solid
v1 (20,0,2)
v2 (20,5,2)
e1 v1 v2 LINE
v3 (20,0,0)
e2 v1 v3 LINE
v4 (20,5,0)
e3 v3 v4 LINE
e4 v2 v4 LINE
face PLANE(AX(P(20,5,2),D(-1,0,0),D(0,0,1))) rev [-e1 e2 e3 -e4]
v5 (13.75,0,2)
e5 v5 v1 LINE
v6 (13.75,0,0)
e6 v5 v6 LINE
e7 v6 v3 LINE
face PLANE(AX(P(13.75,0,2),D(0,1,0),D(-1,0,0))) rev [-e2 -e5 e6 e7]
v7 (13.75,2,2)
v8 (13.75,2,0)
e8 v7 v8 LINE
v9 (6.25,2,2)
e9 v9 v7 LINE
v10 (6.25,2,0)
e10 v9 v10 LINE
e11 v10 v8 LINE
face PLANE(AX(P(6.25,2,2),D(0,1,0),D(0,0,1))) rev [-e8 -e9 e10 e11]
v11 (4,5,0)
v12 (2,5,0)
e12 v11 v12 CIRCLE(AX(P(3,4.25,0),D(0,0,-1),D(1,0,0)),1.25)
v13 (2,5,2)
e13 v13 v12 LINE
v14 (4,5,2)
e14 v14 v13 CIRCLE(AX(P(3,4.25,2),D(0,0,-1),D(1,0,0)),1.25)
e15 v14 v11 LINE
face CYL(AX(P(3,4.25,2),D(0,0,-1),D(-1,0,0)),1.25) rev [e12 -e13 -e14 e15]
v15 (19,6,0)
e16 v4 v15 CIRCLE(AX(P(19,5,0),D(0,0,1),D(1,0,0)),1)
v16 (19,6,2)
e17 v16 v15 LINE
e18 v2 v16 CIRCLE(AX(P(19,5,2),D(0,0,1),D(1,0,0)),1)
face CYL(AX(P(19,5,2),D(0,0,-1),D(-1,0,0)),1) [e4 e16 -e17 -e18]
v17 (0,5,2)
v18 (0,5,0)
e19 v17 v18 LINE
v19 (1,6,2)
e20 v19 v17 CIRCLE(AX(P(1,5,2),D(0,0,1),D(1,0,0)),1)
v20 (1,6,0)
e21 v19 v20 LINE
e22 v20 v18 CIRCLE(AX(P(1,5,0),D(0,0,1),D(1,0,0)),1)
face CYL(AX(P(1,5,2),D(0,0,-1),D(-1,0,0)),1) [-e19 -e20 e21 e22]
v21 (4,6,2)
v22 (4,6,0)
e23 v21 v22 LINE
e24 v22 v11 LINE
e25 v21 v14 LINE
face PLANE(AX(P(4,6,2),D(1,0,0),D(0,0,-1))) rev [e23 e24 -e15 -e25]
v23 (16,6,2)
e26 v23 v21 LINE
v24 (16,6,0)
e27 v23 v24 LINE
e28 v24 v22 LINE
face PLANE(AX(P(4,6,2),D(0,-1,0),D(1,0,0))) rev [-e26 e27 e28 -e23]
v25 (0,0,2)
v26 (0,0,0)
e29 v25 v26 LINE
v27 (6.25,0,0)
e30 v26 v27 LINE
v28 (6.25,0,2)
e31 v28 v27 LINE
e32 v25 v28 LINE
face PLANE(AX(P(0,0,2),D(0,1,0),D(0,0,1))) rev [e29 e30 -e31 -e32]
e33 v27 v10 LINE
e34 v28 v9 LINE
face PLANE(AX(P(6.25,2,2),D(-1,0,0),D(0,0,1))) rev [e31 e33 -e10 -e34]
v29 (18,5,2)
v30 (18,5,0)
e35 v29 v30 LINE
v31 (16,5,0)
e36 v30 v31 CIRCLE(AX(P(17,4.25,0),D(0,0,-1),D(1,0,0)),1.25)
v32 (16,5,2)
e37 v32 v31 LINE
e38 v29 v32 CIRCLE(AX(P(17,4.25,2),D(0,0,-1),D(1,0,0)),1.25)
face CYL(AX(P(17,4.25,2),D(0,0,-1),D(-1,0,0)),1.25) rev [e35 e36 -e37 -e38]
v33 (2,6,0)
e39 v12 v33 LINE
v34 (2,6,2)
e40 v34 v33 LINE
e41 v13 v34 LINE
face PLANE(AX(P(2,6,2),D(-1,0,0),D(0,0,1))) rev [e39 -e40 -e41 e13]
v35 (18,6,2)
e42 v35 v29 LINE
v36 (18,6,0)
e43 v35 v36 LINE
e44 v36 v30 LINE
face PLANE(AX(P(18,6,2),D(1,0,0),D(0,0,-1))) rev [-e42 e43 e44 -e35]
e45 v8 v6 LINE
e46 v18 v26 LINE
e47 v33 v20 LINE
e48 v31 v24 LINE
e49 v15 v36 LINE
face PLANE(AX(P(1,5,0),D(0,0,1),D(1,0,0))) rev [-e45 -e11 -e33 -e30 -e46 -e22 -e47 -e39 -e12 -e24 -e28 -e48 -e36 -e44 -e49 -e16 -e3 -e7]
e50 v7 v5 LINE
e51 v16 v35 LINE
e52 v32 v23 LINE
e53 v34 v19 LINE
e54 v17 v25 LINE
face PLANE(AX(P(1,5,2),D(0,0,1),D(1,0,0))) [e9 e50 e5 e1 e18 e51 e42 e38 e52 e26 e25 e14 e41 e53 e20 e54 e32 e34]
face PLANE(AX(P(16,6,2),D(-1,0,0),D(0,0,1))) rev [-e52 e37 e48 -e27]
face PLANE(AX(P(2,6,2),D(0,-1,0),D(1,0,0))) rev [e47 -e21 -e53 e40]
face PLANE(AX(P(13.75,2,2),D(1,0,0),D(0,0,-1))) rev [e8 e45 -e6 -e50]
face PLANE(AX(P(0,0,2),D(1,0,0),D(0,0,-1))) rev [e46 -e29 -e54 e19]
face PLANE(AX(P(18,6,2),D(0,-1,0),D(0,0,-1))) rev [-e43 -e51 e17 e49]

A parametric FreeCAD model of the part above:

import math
import FreeCAD as App
import Part
import Sketcher
from FreeCAD import Vector
Q = App.Units.Quantity

doc = App.newDocument("Part")
body = doc.addObject("PartDesign::Body", "Body")

sketch1 = body.newObject("Sketcher::SketchObject", "Sketch")
sketch1.AttachmentSupport = (doc.getObject("XY_Plane"), [""])
sketch1.MapMode = "FlatFace"
sketch1.addGeometry([
    Part.LineSegment(Vector(6.2, 2, 0), Vector(13.8, 2, 0)),
    Part.LineSegment(Vector(13.8, 2, 0), Vector(13.8, 0, 0)),
    Part.LineSegment(Vector(13.8, 0, 0), Vector(20, 0, 0)),
    Part.LineSegment(Vector(20, 0, 0), Vector(20, 5, 0)),
    Part.ArcOfCircle(Part.Circle(Vector(19, 5, 0), Vector(0, 0, 1), 1), math.radians(0), math.radians(90)),
    Part.LineSegment(Vector(19, 6, 0), Vector(18, 6, 0)),
    Part.LineSegment(Vector(18, 6, 0), Vector(18, 5, 0)),
    Part.ArcOfCircle(Part.Circle(Vector(17, 4.2, 0), Vector(0, 0, 1), 1.2), math.radians(143), math.radians(397)),
    Part.LineSegment(Vector(16, 5, 0), Vector(16, 6, 0)),
    Part.LineSegment(Vector(16, 6, 0), Vector(4, 6, 0)),
    Part.LineSegment(Vector(4, 6, 0), Vector(4, 5, 0)),
    Part.ArcOfCircle(Part.Circle(Vector(3, 4.2, 0), Vector(0, 0, 1), 1.2), math.radians(143), math.radians(397)),
    Part.LineSegment(Vector(2, 5, 0), Vector(2, 6, 0)),
    Part.LineSegment(Vector(2, 6, 0), Vector(1, 6, 0)),
    Part.ArcOfCircle(Part.Circle(Vector(1, 5, 0), Vector(0, 0, 1), 1), math.radians(90), math.radians(180)),
    Part.LineSegment(Vector(0, 5, 0), Vector(0, 0, 0)),
    Part.LineSegment(Vector(0, 0, 0), Vector(6.2, 0, 0)),
    Part.LineSegment(Vector(6.2, 0, 0), Vector(6.2, 2, 0)),
], False)
sketch1.addConstraint([
    Sketcher.Constraint("Coincident", 0, 2, 1, 1),
    Sketcher.Constraint("Coincident", 1, 2, 2, 1),
    Sketcher.Constraint("Coincident", 2, 2, 3, 1),
    Sketcher.Constraint("Tangent", 3, 2, 4, 1),
    Sketcher.Constraint("Tangent", 4, 2, 5, 1),
    Sketcher.Constraint("Coincident", 5, 2, 6, 1),
    Sketcher.Constraint("Coincident", 6, 2, 7, 2),
    Sketcher.Constraint("Coincident", 7, 1, 8, 1),
    Sketcher.Constraint("Coincident", 8, 2, 9, 1),
    Sketcher.Constraint("Coincident", 9, 2, 10, 1),
    Sketcher.Constraint("Coincident", 10, 2, 11, 2),
    Sketcher.Constraint("Coincident", 11, 1, 12, 1),
    Sketcher.Constraint("Coincident", 12, 2, 13, 1),
    Sketcher.Constraint("Tangent", 13, 2, 14, 1),
    Sketcher.Constraint("Tangent", 14, 2, 15, 1),
    Sketcher.Constraint("Coincident", 15, 2, 16, 1),
    Sketcher.Constraint("Coincident", 16, 2, 17, 1),
    Sketcher.Constraint("Coincident", 17, 2, 0, 1),
    Sketcher.Constraint("Horizontal", 0),
    Sketcher.Constraint("Vertical", 1),
    Sketcher.Constraint("Horizontal", 2),
    Sketcher.Constraint("Vertical", 3),
    Sketcher.Constraint("Horizontal", 5),
    Sketcher.Constraint("Vertical", 6),
    Sketcher.Constraint("Vertical", 8),
    Sketcher.Constraint("Horizontal", 9),
    Sketcher.Constraint("Vertical", 10),
    Sketcher.Constraint("Vertical", 12),
    Sketcher.Constraint("Horizontal", 13),
    Sketcher.Constraint("Vertical", 15),
    Sketcher.Constraint("Horizontal", 16),
    Sketcher.Constraint("Vertical", 17),
    Sketcher.Constraint("Coincident", 15, 2, -1, 1),
    Sketcher.Constraint("Equal", 7, 11),
    Sketcher.Constraint("Equal", 4, 14),
    Sketcher.Constraint("PointOnObject", 1, 2, -1),
    Sketcher.Constraint("Horizontal", 7, 3, 11, 3),
    Sketcher.Constraint("Horizontal", 4, 3, 14, 3),
    Sketcher.Constraint("Horizontal", 3, 2, 6, 2),
    Sketcher.Constraint("Horizontal", 6, 2, 7, 1),
    Sketcher.Constraint("Horizontal", 5, 2, 8, 2),
    Sketcher.Constraint("Horizontal", 7, 1, 10, 2),
    Sketcher.Constraint("Horizontal", 10, 2, 11, 1),
    Sketcher.Constraint("Equal", 5, 13),
    Sketcher.Constraint("Equal", 2, 16),
    Sketcher.Constraint("Equal", 13, 6),
    Sketcher.Constraint("Radius", 4, Q("1 mm")),
    Sketcher.Constraint("DistanceX", 9, 2, 9, 1, Q("12 mm")),
    Sketcher.Constraint("DistanceY", 1, 2, 1, 1, Q("2 mm")),
    Sketcher.Constraint("DistanceY", 3, 1, 3, 2, Q("5 mm")),
    Sketcher.Constraint("Radius", 7, Q("1.25 mm")),
    Sketcher.Constraint("DistanceX", 0, 1, 0, 2, Q("7.5 mm")),
    Sketcher.Constraint("DistanceX", -1, 1, 4, 3, Q("19 mm")),
])
pad1 = body.newObject("PartDesign::Pad", "Pad")
pad1.Profile = sketch1
pad1.Length = 2

doc.recompute()
